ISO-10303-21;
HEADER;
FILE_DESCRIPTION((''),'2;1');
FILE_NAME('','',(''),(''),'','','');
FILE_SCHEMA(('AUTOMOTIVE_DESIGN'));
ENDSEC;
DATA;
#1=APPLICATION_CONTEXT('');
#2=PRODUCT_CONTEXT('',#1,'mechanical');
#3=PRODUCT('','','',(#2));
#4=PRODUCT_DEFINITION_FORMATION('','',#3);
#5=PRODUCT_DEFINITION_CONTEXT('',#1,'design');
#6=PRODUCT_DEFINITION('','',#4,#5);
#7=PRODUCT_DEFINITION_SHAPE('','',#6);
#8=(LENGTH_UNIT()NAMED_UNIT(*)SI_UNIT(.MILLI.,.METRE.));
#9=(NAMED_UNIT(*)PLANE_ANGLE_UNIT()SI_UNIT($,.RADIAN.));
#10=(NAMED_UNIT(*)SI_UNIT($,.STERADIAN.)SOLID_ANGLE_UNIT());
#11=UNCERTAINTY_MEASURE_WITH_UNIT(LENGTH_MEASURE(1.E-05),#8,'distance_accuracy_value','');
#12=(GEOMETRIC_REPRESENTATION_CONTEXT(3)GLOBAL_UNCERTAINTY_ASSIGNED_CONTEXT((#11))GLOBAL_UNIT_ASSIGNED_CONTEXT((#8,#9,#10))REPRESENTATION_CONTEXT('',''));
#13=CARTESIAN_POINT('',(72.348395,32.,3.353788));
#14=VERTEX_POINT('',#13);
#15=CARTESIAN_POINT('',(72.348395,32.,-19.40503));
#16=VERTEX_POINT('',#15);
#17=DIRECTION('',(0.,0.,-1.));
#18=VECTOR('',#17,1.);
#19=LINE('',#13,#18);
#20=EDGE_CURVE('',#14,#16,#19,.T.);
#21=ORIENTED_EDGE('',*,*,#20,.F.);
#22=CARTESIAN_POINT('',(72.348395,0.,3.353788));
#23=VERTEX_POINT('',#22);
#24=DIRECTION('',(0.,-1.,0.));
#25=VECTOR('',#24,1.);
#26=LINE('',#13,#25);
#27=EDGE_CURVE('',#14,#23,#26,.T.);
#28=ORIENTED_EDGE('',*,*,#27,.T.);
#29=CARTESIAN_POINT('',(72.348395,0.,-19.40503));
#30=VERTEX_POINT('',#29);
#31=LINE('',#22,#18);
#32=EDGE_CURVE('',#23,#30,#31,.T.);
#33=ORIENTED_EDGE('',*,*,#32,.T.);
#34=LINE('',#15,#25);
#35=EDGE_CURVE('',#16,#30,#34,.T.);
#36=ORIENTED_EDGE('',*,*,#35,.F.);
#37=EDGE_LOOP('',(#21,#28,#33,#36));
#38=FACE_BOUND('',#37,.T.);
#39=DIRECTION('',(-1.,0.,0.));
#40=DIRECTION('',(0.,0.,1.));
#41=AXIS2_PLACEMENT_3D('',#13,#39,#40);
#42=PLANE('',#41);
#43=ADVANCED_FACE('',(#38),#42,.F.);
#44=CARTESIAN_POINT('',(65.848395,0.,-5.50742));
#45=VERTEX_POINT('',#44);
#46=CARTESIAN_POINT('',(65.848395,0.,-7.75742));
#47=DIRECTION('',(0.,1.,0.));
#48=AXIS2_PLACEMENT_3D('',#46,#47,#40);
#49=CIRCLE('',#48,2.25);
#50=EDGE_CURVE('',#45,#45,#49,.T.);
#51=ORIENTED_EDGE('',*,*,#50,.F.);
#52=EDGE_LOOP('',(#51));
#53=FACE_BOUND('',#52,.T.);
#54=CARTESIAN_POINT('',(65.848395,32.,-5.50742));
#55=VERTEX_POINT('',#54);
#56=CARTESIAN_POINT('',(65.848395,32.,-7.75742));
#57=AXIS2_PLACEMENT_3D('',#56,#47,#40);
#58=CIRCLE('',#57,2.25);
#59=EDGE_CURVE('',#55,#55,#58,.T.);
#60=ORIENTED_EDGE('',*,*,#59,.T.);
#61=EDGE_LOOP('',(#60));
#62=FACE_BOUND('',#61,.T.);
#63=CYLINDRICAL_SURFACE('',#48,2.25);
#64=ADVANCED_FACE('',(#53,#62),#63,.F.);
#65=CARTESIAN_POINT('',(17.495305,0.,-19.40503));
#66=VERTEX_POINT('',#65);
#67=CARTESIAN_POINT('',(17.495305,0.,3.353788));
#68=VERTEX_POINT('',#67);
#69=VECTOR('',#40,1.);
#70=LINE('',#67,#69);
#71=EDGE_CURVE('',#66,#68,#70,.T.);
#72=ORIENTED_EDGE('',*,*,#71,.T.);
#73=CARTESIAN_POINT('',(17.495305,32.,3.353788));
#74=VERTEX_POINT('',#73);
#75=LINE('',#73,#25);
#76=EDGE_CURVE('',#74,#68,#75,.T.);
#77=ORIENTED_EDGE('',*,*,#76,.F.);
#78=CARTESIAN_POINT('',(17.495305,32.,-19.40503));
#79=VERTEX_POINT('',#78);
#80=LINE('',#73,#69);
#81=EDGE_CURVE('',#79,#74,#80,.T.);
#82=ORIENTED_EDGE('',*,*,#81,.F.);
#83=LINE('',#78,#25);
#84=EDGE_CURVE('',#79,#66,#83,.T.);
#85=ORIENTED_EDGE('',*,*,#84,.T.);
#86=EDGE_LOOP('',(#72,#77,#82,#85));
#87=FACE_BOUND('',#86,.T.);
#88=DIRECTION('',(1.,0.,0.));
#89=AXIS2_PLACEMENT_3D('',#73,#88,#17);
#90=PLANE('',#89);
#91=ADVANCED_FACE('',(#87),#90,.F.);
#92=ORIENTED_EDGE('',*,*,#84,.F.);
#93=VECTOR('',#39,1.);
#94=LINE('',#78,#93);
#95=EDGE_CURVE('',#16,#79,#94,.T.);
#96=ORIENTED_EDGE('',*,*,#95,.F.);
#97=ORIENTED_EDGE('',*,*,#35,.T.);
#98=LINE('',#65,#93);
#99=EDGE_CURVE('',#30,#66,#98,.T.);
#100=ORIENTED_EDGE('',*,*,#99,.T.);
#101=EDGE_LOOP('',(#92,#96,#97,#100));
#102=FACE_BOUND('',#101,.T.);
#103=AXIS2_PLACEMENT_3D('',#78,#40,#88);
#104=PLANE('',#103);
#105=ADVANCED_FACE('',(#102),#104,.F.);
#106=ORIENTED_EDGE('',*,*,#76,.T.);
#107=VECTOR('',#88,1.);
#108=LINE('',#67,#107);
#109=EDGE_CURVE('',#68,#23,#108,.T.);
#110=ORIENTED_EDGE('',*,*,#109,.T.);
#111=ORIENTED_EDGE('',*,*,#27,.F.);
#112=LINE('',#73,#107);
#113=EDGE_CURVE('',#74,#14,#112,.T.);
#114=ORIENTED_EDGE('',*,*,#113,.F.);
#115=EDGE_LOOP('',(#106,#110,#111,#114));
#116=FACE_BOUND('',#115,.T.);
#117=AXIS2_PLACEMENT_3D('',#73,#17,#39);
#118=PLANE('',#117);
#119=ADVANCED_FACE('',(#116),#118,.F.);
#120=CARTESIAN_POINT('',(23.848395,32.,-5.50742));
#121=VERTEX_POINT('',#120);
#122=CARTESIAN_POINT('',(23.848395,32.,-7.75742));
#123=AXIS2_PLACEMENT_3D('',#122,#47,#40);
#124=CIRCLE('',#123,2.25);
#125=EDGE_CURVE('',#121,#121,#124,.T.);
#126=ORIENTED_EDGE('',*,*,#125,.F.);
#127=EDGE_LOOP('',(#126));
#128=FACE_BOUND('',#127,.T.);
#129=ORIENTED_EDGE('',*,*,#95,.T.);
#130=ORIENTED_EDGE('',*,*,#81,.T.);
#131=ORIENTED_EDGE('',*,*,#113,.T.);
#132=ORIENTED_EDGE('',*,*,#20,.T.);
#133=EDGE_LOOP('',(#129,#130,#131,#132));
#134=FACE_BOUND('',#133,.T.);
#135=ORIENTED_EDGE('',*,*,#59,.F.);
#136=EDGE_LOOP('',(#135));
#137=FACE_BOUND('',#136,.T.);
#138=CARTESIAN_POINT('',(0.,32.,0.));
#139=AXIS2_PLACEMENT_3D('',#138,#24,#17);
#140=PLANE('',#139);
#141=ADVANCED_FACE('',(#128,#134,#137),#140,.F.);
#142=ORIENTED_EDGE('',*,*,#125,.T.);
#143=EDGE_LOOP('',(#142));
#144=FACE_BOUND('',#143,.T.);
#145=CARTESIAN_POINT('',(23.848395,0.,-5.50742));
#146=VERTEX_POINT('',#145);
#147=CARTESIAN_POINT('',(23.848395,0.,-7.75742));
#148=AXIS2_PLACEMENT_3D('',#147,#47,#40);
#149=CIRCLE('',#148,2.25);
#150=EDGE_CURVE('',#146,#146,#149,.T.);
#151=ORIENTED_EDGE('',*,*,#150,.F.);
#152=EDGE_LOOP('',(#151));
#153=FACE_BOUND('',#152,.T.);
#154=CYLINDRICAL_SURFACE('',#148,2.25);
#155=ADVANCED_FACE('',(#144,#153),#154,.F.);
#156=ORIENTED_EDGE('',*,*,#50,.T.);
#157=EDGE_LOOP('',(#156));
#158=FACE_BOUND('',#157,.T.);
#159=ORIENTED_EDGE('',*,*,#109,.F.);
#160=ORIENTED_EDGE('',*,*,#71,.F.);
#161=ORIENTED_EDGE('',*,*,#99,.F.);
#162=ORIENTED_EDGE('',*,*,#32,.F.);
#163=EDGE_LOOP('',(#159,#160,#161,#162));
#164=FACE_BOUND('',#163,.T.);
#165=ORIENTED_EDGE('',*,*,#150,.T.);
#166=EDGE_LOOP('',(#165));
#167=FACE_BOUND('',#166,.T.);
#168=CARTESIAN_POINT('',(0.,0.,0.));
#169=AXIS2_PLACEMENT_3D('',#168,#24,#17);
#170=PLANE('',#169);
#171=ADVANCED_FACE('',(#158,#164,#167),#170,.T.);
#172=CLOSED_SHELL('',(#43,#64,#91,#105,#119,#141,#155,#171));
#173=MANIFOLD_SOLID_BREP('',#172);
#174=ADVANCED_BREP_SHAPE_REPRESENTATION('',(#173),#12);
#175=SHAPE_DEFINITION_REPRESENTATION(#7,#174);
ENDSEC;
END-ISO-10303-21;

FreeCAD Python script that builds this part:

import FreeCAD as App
import Part
import Sketcher

V = App.Vector
Q = App.Units.Quantity

doc = App.newDocument("Part")
body = doc.addObject("PartDesign::Body", "Body")

sketch1 = doc.addObject("Sketcher::SketchObject", "Sketch")
body.addObject(sketch1)
sketch1.AttachmentSupport = (doc.XZ_Plane, [""])
sketch1.MapMode = "FlatFace"
sketch1.addGeometry([
    Part.LineSegment(V(17, -19, 0), V(17, 3, 0)),
    Part.LineSegment(V(17, 3, 0), V(72, 3, 0)),
    Part.LineSegment(V(72, 3, 0), V(72, -19, 0)),
    Part.LineSegment(V(72, -19, 0), V(17, -19, 0)),
], False)
sketch1.addConstraint([
    Sketcher.Constraint("Coincident", 0, 2, 1, 1),
    Sketcher.Constraint("Coincident", 1, 2, 2, 1),
    Sketcher.Constraint("Coincident", 2, 2, 3, 1),
    Sketcher.Constraint("Coincident", 3, 2, 0, 1),
    Sketcher.Constraint("Vertical", 0),
    Sketcher.Constraint("Horizontal", 1),
    Sketcher.Constraint("Vertical", 2),
    Sketcher.Constraint("Horizontal", 3),
    Sketcher.Constraint("DistanceX", 1, 1, 1, 2, Q("54.85309 mm")),
    Sketcher.Constraint("DistanceY", 0, 1, 0, 2, Q("22.758818 mm")),
    Sketcher.Constraint("DistanceY", -1, 1, 0, 2, Q("3.353788 mm")),
    Sketcher.Constraint("DistanceX", -1, 1, 0, 2, Q("17.495305 mm")),
])
pad1 = doc.addObject("PartDesign::Pad", "Pad")
body.addObject(pad1)
pad1.Profile = sketch1
pad1.Length = 32
pad1.Reversed = True

sketch2 = doc.addObject("Sketcher::SketchObject", "Sketch001")
body.addObject(sketch2)
sketch2.AttachmentSupport = (doc.XZ_Plane, [""])
sketch2.MapMode = "FlatFace"
sketch2.AttachmentOffset = App.Placement(V(0, 0, -32), App.Rotation())
sketch2.addGeometry([
    Part.Circle(V(23.8, -7.8, 0), V(0, 0, 1), 2.2),
    Part.Circle(V(65.8, -7.8, 0), V(0, 0, 1), 2.2),
], False)
sketch2.addConstraint([
    Sketcher.Constraint("Equal", 0, 1),
    Sketcher.Constraint("Horizontal", 0, 3, 1, 3),
    Sketcher.Constraint("Diameter", 0, Q("4.5 mm")),
    Sketcher.Constraint("DistanceX", 0, 3, 1, 3, Q("42 mm")),
    Sketcher.Constraint("DistanceY", 0, 3, -1, 1, Q("7.75742 mm")),
    Sketcher.Constraint("DistanceX", -1, 1, 0, 3, Q("23.848395 mm")),
])
pocket1 = doc.addObject("PartDesign::Pocket", "Pocket")
body.addObject(pocket1)
pocket1.Profile = sketch2
pocket1.Type = "ThroughAll"
pocket1.Reversed = True

doc.recompute()
